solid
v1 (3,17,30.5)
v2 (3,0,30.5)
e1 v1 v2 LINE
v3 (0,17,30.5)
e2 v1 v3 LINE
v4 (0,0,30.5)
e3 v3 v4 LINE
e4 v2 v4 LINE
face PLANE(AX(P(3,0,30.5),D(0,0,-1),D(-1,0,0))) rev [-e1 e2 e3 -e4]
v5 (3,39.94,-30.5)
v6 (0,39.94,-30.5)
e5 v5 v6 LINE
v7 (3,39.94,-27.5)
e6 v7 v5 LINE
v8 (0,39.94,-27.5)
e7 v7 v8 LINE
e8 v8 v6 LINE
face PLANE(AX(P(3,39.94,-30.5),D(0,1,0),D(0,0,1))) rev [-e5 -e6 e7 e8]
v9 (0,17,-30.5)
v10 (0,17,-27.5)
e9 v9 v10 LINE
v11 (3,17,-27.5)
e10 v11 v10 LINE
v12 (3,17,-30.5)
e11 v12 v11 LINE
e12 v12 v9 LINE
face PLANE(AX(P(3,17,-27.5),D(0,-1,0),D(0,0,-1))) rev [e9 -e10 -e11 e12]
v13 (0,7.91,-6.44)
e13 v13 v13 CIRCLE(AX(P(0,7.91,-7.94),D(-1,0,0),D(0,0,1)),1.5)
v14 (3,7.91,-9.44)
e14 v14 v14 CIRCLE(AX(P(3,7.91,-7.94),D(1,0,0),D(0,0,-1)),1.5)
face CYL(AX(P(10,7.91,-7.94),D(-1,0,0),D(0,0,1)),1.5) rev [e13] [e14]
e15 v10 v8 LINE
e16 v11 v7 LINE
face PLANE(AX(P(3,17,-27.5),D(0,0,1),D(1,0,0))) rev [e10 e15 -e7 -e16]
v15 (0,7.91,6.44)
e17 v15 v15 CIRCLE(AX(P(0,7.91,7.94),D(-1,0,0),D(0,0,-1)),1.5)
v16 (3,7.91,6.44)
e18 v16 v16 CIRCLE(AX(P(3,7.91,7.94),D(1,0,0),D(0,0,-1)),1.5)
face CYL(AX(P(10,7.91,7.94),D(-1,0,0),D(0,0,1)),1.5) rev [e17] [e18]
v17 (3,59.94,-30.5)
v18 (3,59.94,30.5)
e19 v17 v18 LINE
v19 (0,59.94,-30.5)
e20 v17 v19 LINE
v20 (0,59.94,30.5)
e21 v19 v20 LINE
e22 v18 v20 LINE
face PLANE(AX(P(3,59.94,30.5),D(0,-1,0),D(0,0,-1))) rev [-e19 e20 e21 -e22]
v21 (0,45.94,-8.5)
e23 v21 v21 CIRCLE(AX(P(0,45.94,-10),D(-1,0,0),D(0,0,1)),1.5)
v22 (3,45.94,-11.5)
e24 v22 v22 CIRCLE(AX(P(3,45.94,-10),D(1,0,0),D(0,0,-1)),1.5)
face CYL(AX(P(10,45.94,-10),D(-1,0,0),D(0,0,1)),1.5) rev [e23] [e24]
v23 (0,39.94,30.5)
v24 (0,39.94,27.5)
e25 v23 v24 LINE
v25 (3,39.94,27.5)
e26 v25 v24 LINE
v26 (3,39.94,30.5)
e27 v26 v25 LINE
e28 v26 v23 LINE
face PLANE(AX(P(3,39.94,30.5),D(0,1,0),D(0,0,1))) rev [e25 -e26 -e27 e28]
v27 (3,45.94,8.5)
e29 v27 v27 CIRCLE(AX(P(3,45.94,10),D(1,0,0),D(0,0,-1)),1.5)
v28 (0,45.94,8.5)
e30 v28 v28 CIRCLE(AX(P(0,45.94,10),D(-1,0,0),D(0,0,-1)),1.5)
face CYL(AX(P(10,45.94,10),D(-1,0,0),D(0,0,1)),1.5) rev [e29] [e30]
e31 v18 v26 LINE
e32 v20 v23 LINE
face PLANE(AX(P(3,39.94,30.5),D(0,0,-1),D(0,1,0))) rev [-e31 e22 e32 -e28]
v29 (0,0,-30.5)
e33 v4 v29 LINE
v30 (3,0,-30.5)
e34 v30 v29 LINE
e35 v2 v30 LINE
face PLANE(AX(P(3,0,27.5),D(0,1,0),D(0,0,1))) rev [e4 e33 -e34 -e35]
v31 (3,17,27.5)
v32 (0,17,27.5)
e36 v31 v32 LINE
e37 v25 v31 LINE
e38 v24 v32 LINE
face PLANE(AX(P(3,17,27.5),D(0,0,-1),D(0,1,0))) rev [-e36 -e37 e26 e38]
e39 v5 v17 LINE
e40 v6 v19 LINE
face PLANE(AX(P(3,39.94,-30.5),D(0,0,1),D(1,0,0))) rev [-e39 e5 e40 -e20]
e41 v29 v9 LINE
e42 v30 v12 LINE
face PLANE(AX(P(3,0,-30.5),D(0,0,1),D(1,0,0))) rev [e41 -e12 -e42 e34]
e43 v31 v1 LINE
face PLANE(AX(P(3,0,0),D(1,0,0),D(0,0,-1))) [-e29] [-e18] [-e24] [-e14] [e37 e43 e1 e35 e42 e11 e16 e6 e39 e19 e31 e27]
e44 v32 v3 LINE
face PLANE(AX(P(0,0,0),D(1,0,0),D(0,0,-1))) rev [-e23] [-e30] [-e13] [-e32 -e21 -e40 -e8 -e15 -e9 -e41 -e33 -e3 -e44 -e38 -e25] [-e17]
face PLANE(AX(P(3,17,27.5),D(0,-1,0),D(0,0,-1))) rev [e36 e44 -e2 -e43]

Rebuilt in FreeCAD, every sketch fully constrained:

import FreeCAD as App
import Part
import Sketcher

V = App.Vector
Q = App.Units.Quantity

doc = App.newDocument("Part")
params = doc.addObject("Spreadsheet::Sheet", "Params")
for row, (alias, value) in enumerate([
    ("sketch1_width", "17 mm"),
    ("sketch1_width2", "20 mm"),
    ("sketch1_height", "3 mm"),
    ("sketch1_height2", "61 mm"),
    ("sketch1_width3", "22.94 mm"),
    ("pad1_length", "3 mm"),
    ("sketch2_diameter", "3 mm"),
    ("pocket1_length", "10 mm"),
], start=1):
    params.set(f"A{row}", alias)
    params.set(f"B{row}", "=" + value)
    params.setAlias(f"B{row}", alias)

body = doc.addObject("PartDesign::Body", "Body")

# Sketch on YZ plane
sketch1 = body.newObject("Sketcher::SketchObject", "Sketch")
sketch1.AttachmentSupport = (doc.getObject("YZ_Plane"), [""])
sketch1.MapMode = "FlatFace"
sketch1.addGeometry(Part.LineSegment(V(0, -30.5, 0), V(17, -30.5, 0)), False)
sketch1.addGeometry(Part.LineSegment(V(17, -30.5, 0), V(17, -27.5, 0)), False)
sketch1.addGeometry(Part.LineSegment(V(17, -27.5, 0), V(39.94, -27.5, 0)), False)
sketch1.addGeometry(Part.LineSegment(V(39.94, -27.5, 0), V(39.94, -30.5, 0)), False)
sketch1.addGeometry(Part.LineSegment(V(39.94, -30.5, 0), V(59.94, -30.5, 0)), False)
sketch1.addGeometry(Part.LineSegment(V(59.94, -30.5, 0), V(59.94, 30.5, 0)), False)
sketch1.addGeometry(Part.LineSegment(V(59.94, 30.5, 0), V(39.94, 30.5, 0)), False)
sketch1.addGeometry(Part.LineSegment(V(39.94, 30.5, 0), V(39.94, 27.5, 0)), False)
sketch1.addGeometry(Part.LineSegment(V(39.94, 27.5, 0), V(17, 27.5, 0)), False)
sketch1.addGeometry(Part.LineSegment(V(17, 27.5, 0), V(17, 30.5, 0)), False)
sketch1.addGeometry(Part.LineSegment(V(17, 30.5, 0), V(0, 30.5, 0)), False)
sketch1.addGeometry(Part.LineSegment(V(0, 30.5, 0), V(0, -30.5, 0)), False)
sketch1.addConstraint(Sketcher.Constraint("Coincident", 0, 2, 1, 1))
sketch1.addConstraint(Sketcher.Constraint("Coincident", 1, 2, 2, 1))
sketch1.addConstraint(Sketcher.Constraint("Coincident", 2, 2, 3, 1))
sketch1.addConstraint(Sketcher.Constraint("Coincident", 3, 2, 4, 1))
sketch1.addConstraint(Sketcher.Constraint("Coincident", 4, 2, 5, 1))
sketch1.addConstraint(Sketcher.Constraint("Coincident", 5, 2, 6, 1))
sketch1.addConstraint(Sketcher.Constraint("Coincident", 6, 2, 7, 1))
sketch1.addConstraint(Sketcher.Constraint("Coincident", 7, 2, 8, 1))
sketch1.addConstraint(Sketcher.Constraint("Coincident", 8, 2, 9, 1))
sketch1.addConstraint(Sketcher.Constraint("Coincident", 9, 2, 10, 1))
sketch1.addConstraint(Sketcher.Constraint("Coincident", 10, 2, 11, 1))
sketch1.addConstraint(Sketcher.Constraint("Coincident", 11, 2, 0, 1))
sketch1.addConstraint(Sketcher.Constraint("Horizontal", 0))
sketch1.addConstraint(Sketcher.Constraint("Vertical", 1))
sketch1.addConstraint(Sketcher.Constraint("Horizontal", 2))
sketch1.addConstraint(Sketcher.Constraint("Vertical", 3))
sketch1.addConstraint(Sketcher.Constraint("Horizontal", 4))
sketch1.addConstraint(Sketcher.Constraint("Vertical", 5))
sketch1.addConstraint(Sketcher.Constraint("Horizontal", 6))
sketch1.addConstraint(Sketcher.Constraint("Vertical", 7))
sketch1.addConstraint(Sketcher.Constraint("Horizontal", 8))
sketch1.addConstraint(Sketcher.Constraint("Vertical", 9))
sketch1.addConstraint(Sketcher.Constraint("Horizontal", 10))
sketch1.addConstraint(Sketcher.Constraint("Vertical", 11))
sketch1.addConstraint(Sketcher.Constraint("Symmetric", 10, 2, 11, 2, -1, 1))
sketch1.addConstraint(Sketcher.Constraint("Symmetric", 3, 2, 6, 2, -1))
sketch1.addConstraint(Sketcher.Constraint("Symmetric", 1, 2, 8, 2, -1))
sketch1.addConstraint(Sketcher.Constraint("Horizontal", 0, 2, 3, 2))
sketch1.addConstraint(Sketcher.Constraint("DistanceX", 0, 1, 0, 2, Q("17 mm")))
sketch1.addConstraint(Sketcher.Constraint("DistanceX", 4, 1, 4, 2, Q("20 mm")))
sketch1.addConstraint(Sketcher.Constraint("DistanceY", 1, 1, 1, 2, Q("3 mm")))
sketch1.addConstraint(Sketcher.Constraint("DistanceY", 5, 1, 5, 2, Q("61 mm")))
sketch1.addConstraint(Sketcher.Constraint("DistanceX", 2, 1, 2, 2, Q("22.94 mm")))
sketch1.setExpression("Constraints[28]", "Params.sketch1_width")
sketch1.setExpression("Constraints[29]", "Params.sketch1_width2")
sketch1.setExpression("Constraints[30]", "Params.sketch1_height")
sketch1.setExpression("Constraints[31]", "Params.sketch1_height2")
sketch1.setExpression("Constraints[32]", "Params.sketch1_width3")
pad1 = body.newObject("PartDesign::Pad", "Pad")
pad1.Profile = sketch1
pad1.setExpression("Length", "Params.pad1_length")

# Sketch on YZ plane
sketch2 = body.newObject("Sketcher::SketchObject", "Sketch001")
sketch2.AttachmentSupport = (doc.getObject("YZ_Plane"), [""])
sketch2.MapMode = "FlatFace"
sketch2.addGeometry(Part.Circle(V(7.91, -7.94, 0), V(0, 0, 1), 1.5), False)
sketch2.addGeometry(Part.Circle(V(7.91, 7.94, 0), V(0, 0, 1), 1.5), False)
sketch2.addGeometry(Part.Circle(V(45.94, -10, 0), V(0, 0, 1), 1.5), False)
sketch2.addGeometry(Part.Circle(V(45.94, 10, 0), V(0, 0, 1), 1.5), False)
sketch2.addConstraint(Sketcher.Constraint("Equal", 0, 1))
sketch2.addConstraint(Sketcher.Constraint("Equal", 1, 2))
sketch2.addConstraint(Sketcher.Constraint("Equal", 2, 3))
sketch2.addConstraint(Sketcher.Constraint("Symmetric", 0, 3, 1, 3, -1))
sketch2.addConstraint(Sketcher.Constraint("Symmetric", 2, 3, 3, 3, -1))
sketch2.addConstraint(Sketcher.Constraint("Diameter", 0, Q("3 mm")))
sketch2.addConstraint(Sketcher.Constraint("DistanceY", 2, 3, -1, 1, Q("10 mm")))
sketch2.addConstraint(Sketcher.Constraint("DistanceX", -1, 1, 0, 3, Q("7.91 mm")))
sketch2.addConstraint(Sketcher.Constraint("DistanceY", 0, 3, -1, 1, Q("7.94 mm")))
sketch2.addConstraint(Sketcher.Constraint("DistanceX", -1, 1, 2, 3, Q("45.94 mm")))
sketch2.setExpression("Constraints[5]", "Params.sketch2_diameter")
pocket1 = body.newObject("PartDesign::Pocket", "Pocket")
pocket1.Profile = sketch2
pocket1.setExpression("Length", "Params.pocket1_length")
pocket1.Reversed = True

doc.recompute()
